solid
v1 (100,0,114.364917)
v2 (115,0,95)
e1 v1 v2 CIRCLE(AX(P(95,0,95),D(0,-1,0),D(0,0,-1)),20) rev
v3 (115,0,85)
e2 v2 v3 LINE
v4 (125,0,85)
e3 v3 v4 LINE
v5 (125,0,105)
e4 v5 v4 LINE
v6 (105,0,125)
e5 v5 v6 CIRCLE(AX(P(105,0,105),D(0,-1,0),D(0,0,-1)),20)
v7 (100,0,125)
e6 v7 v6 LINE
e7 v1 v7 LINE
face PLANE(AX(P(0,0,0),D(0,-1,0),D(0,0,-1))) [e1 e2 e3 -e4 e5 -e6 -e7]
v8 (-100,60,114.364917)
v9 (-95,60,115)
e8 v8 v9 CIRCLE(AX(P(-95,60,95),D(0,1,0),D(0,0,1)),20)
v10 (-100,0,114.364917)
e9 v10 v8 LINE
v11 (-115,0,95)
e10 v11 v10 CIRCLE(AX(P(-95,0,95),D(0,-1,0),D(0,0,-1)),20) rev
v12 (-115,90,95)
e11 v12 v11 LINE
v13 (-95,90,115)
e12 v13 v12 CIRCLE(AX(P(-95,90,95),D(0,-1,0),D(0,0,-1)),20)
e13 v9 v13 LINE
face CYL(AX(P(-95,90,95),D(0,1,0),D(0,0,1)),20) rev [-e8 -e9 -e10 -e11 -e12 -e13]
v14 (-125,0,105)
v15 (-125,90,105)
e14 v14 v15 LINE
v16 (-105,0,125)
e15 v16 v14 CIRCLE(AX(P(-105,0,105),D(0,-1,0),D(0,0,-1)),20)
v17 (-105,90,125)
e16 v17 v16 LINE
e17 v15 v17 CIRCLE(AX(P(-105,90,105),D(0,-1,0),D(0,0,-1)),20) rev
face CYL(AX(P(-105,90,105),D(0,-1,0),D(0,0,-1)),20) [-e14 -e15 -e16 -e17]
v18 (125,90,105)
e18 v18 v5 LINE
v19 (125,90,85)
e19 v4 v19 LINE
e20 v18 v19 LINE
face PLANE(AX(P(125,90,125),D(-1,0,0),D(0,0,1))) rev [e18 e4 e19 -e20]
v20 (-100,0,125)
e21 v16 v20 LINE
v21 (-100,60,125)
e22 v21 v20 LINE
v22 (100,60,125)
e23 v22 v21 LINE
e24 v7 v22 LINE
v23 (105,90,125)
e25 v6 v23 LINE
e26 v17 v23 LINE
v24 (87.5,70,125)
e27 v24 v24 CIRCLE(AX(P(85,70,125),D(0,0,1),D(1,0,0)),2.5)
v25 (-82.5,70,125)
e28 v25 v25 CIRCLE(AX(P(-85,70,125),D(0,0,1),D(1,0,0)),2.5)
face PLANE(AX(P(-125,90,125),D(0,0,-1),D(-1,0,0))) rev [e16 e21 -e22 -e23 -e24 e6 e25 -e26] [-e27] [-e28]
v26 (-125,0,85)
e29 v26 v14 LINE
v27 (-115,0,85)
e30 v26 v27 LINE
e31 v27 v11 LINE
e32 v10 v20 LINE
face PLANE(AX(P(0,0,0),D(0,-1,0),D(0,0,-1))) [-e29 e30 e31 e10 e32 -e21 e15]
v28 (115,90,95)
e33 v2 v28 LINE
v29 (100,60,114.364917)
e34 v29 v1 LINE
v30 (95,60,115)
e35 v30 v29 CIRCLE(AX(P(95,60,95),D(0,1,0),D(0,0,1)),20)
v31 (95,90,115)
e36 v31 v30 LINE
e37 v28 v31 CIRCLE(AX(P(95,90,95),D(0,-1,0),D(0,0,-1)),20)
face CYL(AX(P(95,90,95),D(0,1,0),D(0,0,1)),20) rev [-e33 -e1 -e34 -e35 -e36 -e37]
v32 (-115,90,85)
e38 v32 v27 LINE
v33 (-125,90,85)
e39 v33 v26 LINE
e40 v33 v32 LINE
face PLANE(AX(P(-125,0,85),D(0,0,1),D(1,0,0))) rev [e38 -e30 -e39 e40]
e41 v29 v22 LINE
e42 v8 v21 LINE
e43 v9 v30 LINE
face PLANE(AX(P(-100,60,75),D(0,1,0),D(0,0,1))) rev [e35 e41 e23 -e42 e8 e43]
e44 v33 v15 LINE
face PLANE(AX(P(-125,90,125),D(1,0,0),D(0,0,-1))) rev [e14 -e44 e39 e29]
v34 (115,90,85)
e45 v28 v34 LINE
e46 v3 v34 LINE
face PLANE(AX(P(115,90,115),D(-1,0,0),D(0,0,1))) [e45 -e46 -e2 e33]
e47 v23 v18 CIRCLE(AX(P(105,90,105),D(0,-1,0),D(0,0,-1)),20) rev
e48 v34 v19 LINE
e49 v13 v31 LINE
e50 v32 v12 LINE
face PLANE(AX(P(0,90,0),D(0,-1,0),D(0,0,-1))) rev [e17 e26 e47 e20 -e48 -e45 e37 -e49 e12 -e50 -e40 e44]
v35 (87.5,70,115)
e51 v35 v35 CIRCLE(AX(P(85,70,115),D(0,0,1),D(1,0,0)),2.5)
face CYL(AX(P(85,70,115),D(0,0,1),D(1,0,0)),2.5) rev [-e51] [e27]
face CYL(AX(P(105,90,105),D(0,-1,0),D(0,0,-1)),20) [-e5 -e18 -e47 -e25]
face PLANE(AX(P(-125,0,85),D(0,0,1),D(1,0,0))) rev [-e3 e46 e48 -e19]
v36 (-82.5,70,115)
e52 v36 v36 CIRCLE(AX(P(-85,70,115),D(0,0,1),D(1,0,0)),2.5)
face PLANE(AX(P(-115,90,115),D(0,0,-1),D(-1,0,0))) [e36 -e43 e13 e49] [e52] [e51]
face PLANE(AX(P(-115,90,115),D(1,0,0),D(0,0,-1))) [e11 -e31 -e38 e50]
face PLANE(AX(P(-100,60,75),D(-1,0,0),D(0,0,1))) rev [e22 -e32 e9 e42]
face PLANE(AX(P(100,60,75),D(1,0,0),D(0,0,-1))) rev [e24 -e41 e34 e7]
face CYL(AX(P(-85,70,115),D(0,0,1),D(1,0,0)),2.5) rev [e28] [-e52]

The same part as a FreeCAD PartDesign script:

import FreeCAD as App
import Part
import Sketcher
from FreeCAD import Vector
Q = App.Units.Quantity


def edges_at(feature, points):
    """Names of the edges that pass closest to the given points."""
    edges = feature.Shape.Edges
    near = lambda p: min(range(len(edges)), key=lambda i: edges[i].distToShape(Part.Vertex(*p))[0])
    return sorted({f"Edge{near(p) + 1}" for p in points})


def add_polygon(sketch, points):
    """Adds a closed chain of lines whose ends are joined by coincident constraints."""
    first, n = sketch.GeometryCount, len(points)
    for a, b in zip(points, points[1:] + points[:1]):
        sketch.addGeometry(Part.LineSegment(App.Vector(*a, 0), App.Vector(*b, 0)), False)
    for i in range(n):
        sketch.addConstraint(Sketcher.Constraint("Coincident", first + i, 2, first + (i + 1) % n, 1))

doc = App.newDocument("Part")
body = doc.addObject("PartDesign::Body", "Body")

# Sketch on XZ plane
sketch1 = doc.addObject("Sketcher::SketchObject", "Sketch")
body.addObject(sketch1)
sketch1.AttachmentSupport = (doc.XZ_Plane, [""])
sketch1.MapMode = "FlatFace"
add_polygon(sketch1, [(-125, -125), (-125, 125), (125, 125), (125, -125)])  # lines 0-3
add_polygon(sketch1, [(115, 115), (-115, 115), (-115, -115), (115, -115)])  # lines 4-7
sketch1.addConstraint([
    Sketcher.Constraint("Vertical", 0),
    Sketcher.Constraint("Horizontal", 1),
    Sketcher.Constraint("Vertical", 2),
    Sketcher.Constraint("Horizontal", 3),
    Sketcher.Constraint("Horizontal", 4),
    Sketcher.Constraint("Vertical", 5),
    Sketcher.Constraint("Horizontal", 6),
    Sketcher.Constraint("Vertical", 7),
    Sketcher.Constraint("Symmetric", 0, 2, 2, 2, -1, 1),
    Sketcher.Constraint("Symmetric", 4, 2, 6, 2, -1, 1),
    Sketcher.Constraint("Equal", 3, 0),
    Sketcher.Constraint("Equal", 6, 5),
    Sketcher.Constraint("DistanceX", 1, 1, 1, 2, Q("250 mm")),
    Sketcher.Constraint("DistanceX", 4, 2, 4, 1, Q("230 mm")),
])
pad1 = doc.addObject("PartDesign::Pad", "Pad")
body.addObject(pad1)
pad1.Profile = sketch1
pad1.Length = 90
pad1.Reversed = True

# Sketch on XY plane
sketch2 = doc.addObject("Sketcher::SketchObject", "Sketch001")
body.addObject(sketch2)
sketch2.AttachmentSupport = (doc.XY_Plane, [""])
sketch2.MapMode = "FlatFace"
sketch2.AttachmentOffset = App.Placement(Vector(0, 0, 125), App.Rotation())
add_polygon(sketch2, [(-100, 60), (-100, 0), (100, 0), (100, 60)])  # lines 0-3
sketch2.addConstraint([
    Sketcher.Constraint("Vertical", 0),
    Sketcher.Constraint("Horizontal", 1),
    Sketcher.Constraint("Vertical", 2),
    Sketcher.Constraint("Horizontal", 3),
    Sketcher.Constraint("Symmetric", 0, 2, 1, 2, -1, 1),
    Sketcher.Constraint("DistanceX", 1, 1, 1, 2, Q("200 mm")),
    Sketcher.Constraint("DistanceY", 0, 2, 0, 1, Q("60 mm")),
])
pocket1 = doc.addObject("PartDesign::Pocket", "Pocket")
body.addObject(pocket1)
pocket1.Profile = sketch2
pocket1.Length = 50
doc.recompute()

fillet = doc.addObject("PartDesign::Fillet", "Fillet")
body.addObject(fillet)
fillet.Base = (pocket1, edges_at(pocket1, [
    (-115, 45, 115),
    (115, 45, 115),
    (115, 45, -115),
    (-115, 45, -115),
    (-125, 45, 125),
    (125, 45, 125),
    (125, 45, -125),
    (-125, 45, -125),
]))
fillet.Radius = 20

# Sketch on YZ plane
sketch3 = doc.addObject("Sketcher::SketchObject", "Sketch002")
body.addObject(sketch3)
sketch3.AttachmentSupport = (doc.YZ_Plane, [""])
sketch3.MapMode = "FlatFace"
sketch3.AttachmentOffset = App.Placement(Vector(0, 0, 125), App.Rotation())
add_polygon(sketch3, [(90, 85), (0, 85), (0, -125), (90, -125)])  # lines 0-3
sketch3.addConstraint([
    Sketcher.Constraint("Horizontal", 0),
    Sketcher.Constraint("Vertical", 1),
    Sketcher.Constraint("Horizontal", 2),
    Sketcher.Constraint("Vertical", 3),
    Sketcher.Constraint("PointOnObject", 0, 2, -2),
    Sketcher.Constraint("DistanceX", 0, 2, 0, 1, Q("90 mm")),
    Sketcher.Constraint("DistanceY", 1, 2, 1, 1, Q("210 mm")),
    Sketcher.Constraint("DistanceY", -1, 1, 0, 2, Q("85 mm")),
])
pocket2 = doc.addObject("PartDesign::Pocket", "Pocket001")
body.addObject(pocket2)
pocket2.Profile = sketch3
pocket2.Type = "ThroughAll"
pocket2.Midplane = True

# Sketch on XY plane
sketch4 = doc.addObject("Sketcher::SketchObject", "Sketch003")
body.addObject(sketch4)
sketch4.AttachmentSupport = (doc.XY_Plane, [""])
sketch4.MapMode = "FlatFace"
sketch4.AttachmentOffset = App.Placement(Vector(0, 0, 125), App.Rotation())
sketch4.addGeometry([
    Part.Circle(Vector(-85, 70, 0), Vector(0, 0, 1), 2.5),
    Part.Circle(Vector(85, 70, 0), Vector(0, 0, 1), 2.5),
], False)
sketch4.addConstraint([
    Sketcher.Constraint("Equal", 0, 1),
    Sketcher.Constraint("Symmetric", 0, 3, 1, 3, -2),
    Sketcher.Constraint("Diameter", 0, Q("5 mm")),
    Sketcher.Constraint("DistanceX", 0, 3, -1, 1, Q("85 mm")),
    Sketcher.Constraint("DistanceY", -1, 1, 0, 3, Q("70 mm")),
])
pocket3 = doc.addObject("PartDesign::Pocket", "Pocket002")
body.addObject(pocket3)
pocket3.Profile = sketch4
pocket3.Length = 10

doc.recompute()
